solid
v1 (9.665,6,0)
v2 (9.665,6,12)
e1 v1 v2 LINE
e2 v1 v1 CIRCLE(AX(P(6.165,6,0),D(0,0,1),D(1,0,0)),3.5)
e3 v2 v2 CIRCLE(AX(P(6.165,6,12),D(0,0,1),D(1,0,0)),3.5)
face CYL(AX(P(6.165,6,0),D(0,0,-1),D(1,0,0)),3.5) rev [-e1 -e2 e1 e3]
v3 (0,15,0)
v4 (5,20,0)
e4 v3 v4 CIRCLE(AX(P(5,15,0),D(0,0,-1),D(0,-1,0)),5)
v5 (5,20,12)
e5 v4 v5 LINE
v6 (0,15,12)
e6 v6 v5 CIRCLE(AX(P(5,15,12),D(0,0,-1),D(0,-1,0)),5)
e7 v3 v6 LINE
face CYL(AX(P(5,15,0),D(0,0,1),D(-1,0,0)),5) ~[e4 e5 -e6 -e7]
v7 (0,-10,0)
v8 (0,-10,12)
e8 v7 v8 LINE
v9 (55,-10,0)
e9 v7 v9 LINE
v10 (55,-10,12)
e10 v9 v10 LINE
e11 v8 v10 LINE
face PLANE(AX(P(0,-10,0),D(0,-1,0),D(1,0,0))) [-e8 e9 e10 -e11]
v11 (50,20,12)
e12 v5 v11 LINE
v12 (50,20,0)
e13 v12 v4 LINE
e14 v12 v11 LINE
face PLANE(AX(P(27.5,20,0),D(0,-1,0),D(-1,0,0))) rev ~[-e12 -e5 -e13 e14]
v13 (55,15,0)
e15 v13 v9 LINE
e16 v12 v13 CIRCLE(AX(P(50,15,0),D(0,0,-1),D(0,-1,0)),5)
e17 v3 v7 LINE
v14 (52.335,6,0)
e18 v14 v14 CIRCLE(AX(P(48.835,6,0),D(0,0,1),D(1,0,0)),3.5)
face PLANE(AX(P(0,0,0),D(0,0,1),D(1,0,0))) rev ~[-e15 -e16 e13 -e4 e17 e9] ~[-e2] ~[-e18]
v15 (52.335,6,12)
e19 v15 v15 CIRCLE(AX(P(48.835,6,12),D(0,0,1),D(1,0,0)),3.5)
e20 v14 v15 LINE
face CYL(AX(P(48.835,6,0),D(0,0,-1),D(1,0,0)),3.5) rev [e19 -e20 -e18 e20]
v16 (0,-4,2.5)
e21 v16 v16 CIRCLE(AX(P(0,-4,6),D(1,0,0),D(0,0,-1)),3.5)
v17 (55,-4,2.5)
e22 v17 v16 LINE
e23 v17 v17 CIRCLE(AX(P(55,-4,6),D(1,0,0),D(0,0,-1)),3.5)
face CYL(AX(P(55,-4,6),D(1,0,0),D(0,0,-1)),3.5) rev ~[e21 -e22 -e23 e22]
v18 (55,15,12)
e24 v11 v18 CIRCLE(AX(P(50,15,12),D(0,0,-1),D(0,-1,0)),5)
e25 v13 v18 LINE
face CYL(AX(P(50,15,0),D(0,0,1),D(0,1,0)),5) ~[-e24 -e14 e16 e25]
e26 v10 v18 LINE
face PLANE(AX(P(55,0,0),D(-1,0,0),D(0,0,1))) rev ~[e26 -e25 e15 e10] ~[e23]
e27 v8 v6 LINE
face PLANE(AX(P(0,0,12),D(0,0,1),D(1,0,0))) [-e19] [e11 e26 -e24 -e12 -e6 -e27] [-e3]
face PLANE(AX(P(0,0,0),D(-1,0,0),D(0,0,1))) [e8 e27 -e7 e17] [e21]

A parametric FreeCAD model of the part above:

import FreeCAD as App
import Part
import Sketcher

V = App.Vector
Q = App.Units.Quantity


def edges_at(feature, points):
    """Names of the edges that pass closest to the given points."""
    edges = feature.Shape.Edges
    near = lambda p: min(range(len(edges)), key=lambda i: edges[i].distToShape(Part.Vertex(*p))[0])
    return sorted({f"Edge{near(p) + 1}" for p in points})


def add_polygon(sketch, points):
    """Adds a closed chain of lines whose ends are joined by coincident constraints."""
    first, n = sketch.GeometryCount, len(points)
    for a, b in zip(points, points[1:] + points[:1]):
        sketch.addGeometry(Part.LineSegment(App.Vector(*a, 0), App.Vector(*b, 0)), False)
    for i in range(n):
        sketch.addConstraint(Sketcher.Constraint("Coincident", first + i, 2, first + (i + 1) % n, 1))

doc = App.newDocument("Part")
body = doc.addObject("PartDesign::Body", "Body")

sketch1 = body.newObject("Sketcher::SketchObject", "Sketch")
sketch1.AttachmentSupport = (doc.getObject("XY_Plane"), [""])
sketch1.MapMode = "FlatFace"
add_polygon(sketch1, [(0, 20), (0, 0), (55, 0), (55, 20)])
sketch1.addGeometry(Part.Circle(V(6.2, 6, 0), V(0, 0, 1), 3.5), False)
sketch1.addGeometry(Part.Circle(V(48.8, 6, 0), V(0, 0, 1), 3.5), False)
sketch1.addConstraint([
    Sketcher.Constraint("Vertical", 0),
    Sketcher.Constraint("Horizontal", 1),
    Sketcher.Constraint("Vertical", 2),
    Sketcher.Constraint("Horizontal", 3),
    Sketcher.Constraint("Coincident", 0, 2, -1, 1),
    Sketcher.Constraint("Equal", 4, 5),
    Sketcher.Constraint("Horizontal", 4, 3, 5, 3),
    Sketcher.Constraint("Diameter", 4, Q("7 mm")),
    Sketcher.Constraint("DistanceX", 1, 1, 1, 2, Q("55 mm")),
    Sketcher.Constraint("DistanceY", 0, 2, 0, 1, Q("20 mm")),
    Sketcher.Constraint("DistanceY", -1, 1, 4, 3, Q("6 mm")),
    Sketcher.Constraint("DistanceX", 4, 3, 5, 3, Q("42.67 mm")),
    Sketcher.Constraint("DistanceX", -1, 1, 4, 3, Q("6.165 mm")),
])
pad1 = body.newObject("PartDesign::Pad", "Pad")
pad1.Profile = sketch1
pad1.Length = 12
doc.recompute()

fillet = body.newObject("PartDesign::Fillet", "Fillet")
fillet.Base = (pad1, edges_at(pad1, [(55, 20, 6), (0, 20, 6)]))
fillet.Radius = 5

sketch2 = body.newObject("Sketcher::SketchObject", "Sketch001")
sketch2.AttachmentSupport = (doc.getObject("XZ_Plane"), [""])
sketch2.MapMode = "FlatFace"
add_polygon(sketch2, [(0, 12), (0, 0), (55, 0), (55, 12)])
sketch2.addConstraint([
    Sketcher.Constraint("Vertical", 0),
    Sketcher.Constraint("Horizontal", 1),
    Sketcher.Constraint("Vertical", 2),
    Sketcher.Constraint("Horizontal", 3),
    Sketcher.Constraint("Coincident", 0, 2, -1, 1),
    Sketcher.Constraint("DistanceX", 1, 1, 1, 2, Q("55 mm")),
    Sketcher.Constraint("DistanceY", 0, 2, 0, 1, Q("12 mm")),
])
pad2 = body.newObject("PartDesign::Pad", "Pad001")
pad2.Profile = sketch2
pad2.Length = 10

sketch3 = body.newObject("Sketcher::SketchObject", "Sketch002")
sketch3.AttachmentSupport = (doc.getObject("YZ_Plane"), [""])
sketch3.MapMode = "FlatFace"
sketch3.AttachmentOffset = App.Placement(V(0, 0, 55), App.Rotation())
sketch3.addGeometry(Part.Circle(V(-4, 6, 0), V(0, 0, 1), 3.5), False)
sketch3.addConstraint([
    Sketcher.Constraint("Diameter", 0, Q("7 mm")),
    Sketcher.Constraint("DistanceY", -1, 1, 0, 3, Q("6 mm")),
    Sketcher.Constraint("DistanceX", 0, 3, -1, 1, Q("4 mm")),
])
pocket1 = body.newObject("PartDesign::Pocket", "Pocket")
pocket1.Profile = sketch3
pocket1.Length = 55

doc.recompute()
